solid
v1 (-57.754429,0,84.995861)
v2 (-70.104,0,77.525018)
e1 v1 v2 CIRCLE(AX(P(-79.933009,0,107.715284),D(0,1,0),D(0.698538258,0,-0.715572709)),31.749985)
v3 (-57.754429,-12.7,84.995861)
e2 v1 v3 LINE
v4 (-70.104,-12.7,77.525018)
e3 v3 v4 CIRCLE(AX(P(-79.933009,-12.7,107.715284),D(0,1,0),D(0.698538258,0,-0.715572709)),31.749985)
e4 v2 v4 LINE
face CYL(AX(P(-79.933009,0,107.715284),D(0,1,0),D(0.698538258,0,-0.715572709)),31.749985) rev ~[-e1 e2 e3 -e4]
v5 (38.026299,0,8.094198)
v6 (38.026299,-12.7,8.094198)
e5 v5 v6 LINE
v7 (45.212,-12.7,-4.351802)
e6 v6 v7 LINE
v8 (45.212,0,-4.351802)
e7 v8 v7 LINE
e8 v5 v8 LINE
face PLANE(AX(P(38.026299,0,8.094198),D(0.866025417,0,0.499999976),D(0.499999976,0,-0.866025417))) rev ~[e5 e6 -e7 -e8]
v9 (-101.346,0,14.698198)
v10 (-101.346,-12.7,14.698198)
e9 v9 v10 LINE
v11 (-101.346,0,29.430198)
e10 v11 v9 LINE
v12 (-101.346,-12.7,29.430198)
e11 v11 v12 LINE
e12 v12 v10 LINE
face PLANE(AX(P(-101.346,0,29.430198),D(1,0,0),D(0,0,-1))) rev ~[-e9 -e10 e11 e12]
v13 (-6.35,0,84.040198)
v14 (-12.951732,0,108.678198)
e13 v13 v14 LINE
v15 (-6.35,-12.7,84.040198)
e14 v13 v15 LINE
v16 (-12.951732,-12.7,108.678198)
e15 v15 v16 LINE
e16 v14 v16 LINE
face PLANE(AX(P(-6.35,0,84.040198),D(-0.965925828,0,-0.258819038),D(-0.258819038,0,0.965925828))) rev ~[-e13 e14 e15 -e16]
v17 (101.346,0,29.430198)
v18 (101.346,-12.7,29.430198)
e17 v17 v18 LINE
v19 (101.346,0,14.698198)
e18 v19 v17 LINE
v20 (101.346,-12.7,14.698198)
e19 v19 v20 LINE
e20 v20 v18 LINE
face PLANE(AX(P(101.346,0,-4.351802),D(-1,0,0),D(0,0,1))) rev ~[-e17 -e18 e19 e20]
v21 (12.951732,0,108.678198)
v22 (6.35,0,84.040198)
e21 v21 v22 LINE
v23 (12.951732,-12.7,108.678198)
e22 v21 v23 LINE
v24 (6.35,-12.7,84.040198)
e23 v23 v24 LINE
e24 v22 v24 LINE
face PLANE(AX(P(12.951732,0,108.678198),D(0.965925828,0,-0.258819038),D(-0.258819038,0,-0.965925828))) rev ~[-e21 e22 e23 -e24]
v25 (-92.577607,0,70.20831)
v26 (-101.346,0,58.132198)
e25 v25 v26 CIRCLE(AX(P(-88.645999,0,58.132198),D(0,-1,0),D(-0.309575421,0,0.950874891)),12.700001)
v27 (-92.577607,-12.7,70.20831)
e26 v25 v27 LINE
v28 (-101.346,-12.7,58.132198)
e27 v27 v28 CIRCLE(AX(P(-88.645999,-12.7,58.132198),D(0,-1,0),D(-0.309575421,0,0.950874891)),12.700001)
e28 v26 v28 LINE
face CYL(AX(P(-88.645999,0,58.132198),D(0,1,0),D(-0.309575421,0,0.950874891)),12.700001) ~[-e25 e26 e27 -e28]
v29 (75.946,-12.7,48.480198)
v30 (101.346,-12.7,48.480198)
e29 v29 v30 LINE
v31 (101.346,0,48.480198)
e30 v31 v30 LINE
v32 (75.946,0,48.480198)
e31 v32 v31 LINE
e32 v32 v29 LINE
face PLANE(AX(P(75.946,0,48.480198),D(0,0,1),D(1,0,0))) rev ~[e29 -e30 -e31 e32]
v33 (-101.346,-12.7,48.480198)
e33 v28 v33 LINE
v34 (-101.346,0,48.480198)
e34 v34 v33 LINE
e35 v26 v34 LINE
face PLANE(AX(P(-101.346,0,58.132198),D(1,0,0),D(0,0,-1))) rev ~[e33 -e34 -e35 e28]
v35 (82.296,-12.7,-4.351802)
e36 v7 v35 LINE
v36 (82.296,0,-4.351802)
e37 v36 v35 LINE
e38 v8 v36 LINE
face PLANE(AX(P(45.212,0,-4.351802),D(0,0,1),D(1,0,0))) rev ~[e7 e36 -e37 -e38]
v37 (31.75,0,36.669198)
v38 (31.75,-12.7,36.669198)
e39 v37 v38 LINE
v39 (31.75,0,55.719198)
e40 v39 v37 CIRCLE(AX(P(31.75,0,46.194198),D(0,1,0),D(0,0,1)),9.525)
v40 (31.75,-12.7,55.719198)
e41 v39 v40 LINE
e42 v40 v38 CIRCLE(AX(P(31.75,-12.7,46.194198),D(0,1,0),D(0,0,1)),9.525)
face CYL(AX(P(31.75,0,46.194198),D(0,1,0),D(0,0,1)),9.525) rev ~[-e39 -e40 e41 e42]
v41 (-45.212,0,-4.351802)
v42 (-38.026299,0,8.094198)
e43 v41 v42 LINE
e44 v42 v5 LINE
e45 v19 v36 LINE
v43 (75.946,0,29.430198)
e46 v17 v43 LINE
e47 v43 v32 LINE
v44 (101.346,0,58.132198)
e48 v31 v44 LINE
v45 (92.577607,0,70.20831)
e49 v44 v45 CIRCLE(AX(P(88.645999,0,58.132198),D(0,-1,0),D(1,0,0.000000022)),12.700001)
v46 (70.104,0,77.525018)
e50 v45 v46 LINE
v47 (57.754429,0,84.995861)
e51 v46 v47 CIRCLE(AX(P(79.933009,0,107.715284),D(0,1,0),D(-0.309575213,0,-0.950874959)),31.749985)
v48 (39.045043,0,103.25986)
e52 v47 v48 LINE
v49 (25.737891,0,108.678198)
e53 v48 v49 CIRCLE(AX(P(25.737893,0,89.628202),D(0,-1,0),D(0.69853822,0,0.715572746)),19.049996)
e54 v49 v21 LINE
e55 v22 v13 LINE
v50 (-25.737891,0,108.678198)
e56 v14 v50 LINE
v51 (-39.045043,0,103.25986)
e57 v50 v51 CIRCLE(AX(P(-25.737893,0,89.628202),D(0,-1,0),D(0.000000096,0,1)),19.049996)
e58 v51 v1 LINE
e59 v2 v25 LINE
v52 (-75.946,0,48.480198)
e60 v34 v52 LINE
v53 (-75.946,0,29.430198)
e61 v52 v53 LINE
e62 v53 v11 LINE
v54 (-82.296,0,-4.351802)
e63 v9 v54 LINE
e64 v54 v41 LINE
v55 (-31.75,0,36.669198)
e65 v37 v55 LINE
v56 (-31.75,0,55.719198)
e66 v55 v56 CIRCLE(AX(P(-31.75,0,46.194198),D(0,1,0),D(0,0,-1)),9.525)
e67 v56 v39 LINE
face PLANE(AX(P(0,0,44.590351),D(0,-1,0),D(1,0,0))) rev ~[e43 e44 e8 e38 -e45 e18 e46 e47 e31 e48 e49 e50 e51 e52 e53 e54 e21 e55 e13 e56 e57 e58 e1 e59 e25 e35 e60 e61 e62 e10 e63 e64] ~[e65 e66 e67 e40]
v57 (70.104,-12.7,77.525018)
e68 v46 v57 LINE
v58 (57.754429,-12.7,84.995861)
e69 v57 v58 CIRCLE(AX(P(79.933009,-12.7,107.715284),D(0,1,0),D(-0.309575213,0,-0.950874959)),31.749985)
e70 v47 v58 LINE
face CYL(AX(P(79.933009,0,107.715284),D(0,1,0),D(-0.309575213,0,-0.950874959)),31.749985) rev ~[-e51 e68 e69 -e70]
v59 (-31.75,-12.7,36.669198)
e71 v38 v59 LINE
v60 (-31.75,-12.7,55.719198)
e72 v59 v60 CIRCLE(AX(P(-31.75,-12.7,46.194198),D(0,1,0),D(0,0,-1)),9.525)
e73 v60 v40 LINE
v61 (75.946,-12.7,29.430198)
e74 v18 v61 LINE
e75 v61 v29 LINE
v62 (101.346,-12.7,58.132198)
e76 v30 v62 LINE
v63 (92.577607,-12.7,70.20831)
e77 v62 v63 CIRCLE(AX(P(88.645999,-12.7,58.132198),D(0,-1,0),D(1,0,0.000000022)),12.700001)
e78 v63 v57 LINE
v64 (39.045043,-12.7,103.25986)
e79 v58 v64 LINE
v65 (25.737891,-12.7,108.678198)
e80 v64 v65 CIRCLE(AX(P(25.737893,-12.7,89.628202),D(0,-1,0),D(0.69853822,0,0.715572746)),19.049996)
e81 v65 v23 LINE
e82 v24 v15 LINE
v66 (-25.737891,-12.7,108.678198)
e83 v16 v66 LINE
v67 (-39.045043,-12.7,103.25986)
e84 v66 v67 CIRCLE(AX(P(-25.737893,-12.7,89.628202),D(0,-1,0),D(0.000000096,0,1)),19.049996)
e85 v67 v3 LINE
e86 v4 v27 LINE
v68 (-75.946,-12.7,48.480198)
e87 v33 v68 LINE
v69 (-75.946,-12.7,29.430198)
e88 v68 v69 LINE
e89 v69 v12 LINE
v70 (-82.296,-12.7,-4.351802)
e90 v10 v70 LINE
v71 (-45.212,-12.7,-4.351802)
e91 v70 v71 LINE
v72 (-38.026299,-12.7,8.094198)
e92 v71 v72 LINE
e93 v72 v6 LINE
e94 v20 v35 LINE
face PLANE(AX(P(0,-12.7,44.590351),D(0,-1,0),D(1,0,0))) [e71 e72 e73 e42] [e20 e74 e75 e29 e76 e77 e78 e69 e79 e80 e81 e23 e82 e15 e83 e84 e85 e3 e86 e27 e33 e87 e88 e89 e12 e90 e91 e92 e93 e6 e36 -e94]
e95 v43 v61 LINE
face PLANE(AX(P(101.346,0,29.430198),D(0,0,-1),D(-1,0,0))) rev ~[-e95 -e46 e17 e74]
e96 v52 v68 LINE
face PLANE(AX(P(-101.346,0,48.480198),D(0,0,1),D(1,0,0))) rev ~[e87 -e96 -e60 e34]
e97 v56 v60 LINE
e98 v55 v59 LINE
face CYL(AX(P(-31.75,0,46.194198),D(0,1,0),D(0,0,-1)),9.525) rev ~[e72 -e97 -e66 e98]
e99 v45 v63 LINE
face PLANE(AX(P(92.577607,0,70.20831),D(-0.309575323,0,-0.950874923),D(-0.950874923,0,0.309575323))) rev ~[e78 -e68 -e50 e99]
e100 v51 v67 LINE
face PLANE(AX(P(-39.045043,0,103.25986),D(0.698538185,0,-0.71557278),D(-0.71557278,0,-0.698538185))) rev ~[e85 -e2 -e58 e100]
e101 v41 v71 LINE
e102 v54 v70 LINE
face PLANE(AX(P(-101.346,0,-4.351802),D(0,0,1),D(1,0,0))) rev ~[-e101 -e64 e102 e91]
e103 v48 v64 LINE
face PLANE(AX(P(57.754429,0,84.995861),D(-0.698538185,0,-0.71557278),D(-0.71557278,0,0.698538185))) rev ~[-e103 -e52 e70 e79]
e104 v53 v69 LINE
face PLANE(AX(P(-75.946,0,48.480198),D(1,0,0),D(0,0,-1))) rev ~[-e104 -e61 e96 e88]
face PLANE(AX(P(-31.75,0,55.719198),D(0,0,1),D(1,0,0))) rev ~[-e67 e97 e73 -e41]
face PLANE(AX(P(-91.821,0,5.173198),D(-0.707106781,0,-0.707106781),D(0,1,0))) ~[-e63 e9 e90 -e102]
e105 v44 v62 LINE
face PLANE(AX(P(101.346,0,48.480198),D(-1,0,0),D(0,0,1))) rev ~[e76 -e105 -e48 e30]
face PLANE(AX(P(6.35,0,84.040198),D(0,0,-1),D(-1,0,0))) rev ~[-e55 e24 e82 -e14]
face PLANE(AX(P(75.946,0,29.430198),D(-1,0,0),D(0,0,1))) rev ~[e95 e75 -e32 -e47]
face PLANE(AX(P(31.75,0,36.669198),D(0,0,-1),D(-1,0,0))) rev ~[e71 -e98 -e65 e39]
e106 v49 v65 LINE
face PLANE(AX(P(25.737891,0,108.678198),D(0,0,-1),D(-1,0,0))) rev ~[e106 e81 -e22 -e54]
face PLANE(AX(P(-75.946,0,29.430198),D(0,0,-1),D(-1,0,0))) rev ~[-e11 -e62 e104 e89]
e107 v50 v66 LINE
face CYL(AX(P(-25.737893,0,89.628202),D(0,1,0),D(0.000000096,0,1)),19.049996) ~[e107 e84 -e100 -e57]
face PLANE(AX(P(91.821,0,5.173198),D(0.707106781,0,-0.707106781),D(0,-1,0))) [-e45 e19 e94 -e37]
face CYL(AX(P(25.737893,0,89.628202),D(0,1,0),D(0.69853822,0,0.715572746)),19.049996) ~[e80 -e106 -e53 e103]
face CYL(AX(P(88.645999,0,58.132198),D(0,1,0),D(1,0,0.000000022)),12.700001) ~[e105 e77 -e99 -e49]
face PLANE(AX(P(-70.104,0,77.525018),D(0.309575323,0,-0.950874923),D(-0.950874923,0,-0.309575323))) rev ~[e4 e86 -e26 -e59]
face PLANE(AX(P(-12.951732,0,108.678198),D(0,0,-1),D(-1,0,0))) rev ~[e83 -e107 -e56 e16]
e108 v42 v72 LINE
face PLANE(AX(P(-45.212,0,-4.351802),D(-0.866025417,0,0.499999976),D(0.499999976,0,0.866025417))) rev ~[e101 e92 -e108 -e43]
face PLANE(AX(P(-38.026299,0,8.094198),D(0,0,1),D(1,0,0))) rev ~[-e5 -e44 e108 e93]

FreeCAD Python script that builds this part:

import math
import FreeCAD as App
import Part
import Sketcher
Q = App.Units.Quantity


def edges_at(feature, points):
    """Names of the edges that pass closest to the given points."""
    edges = feature.Shape.Edges
    near = lambda p: min(range(len(edges)), key=lambda i: edges[i].distToShape(Part.Vertex(*p))[0])
    return sorted({f"Edge{near(p) + 1}" for p in points})

doc = App.newDocument("Part")
body = doc.addObject("PartDesign::Body", "Body")

# Sketch on XZ plane
sketch1 = body.newObject("Sketcher::SketchObject", "Sketch")
sketch1.AttachmentSupport = (doc.getObject("XZ_Plane"), [""])
sketch1.MapMode = "FlatFace"
sketch1.addGeometry(Part.LineSegment(App.Vector(13, 109, 0), App.Vector(6, 84, 0)), False)
sketch1.addGeometry(Part.LineSegment(App.Vector(6, 84, 0), App.Vector(-6, 84, 0)), False)
sketch1.addGeometry(Part.LineSegment(App.Vector(-6, 84, 0), App.Vector(-13, 109, 0)), False)
sketch1.addGeometry(Part.LineSegment(App.Vector(-13, 109, 0), App.Vector(-26, 109, 0)), False)
sketch1.addGeometry(Part.ArcOfCircle(Part.Circle(App.Vector(-26, 90, 0), App.Vector(0, 0, 1), 19), math.radians(90), math.radians(134)), False)
sketch1.addGeometry(Part.LineSegment(App.Vector(-39, 103, 0), App.Vector(-58, 85, 0)), False)
sketch1.addGeometry(Part.ArcOfCircle(Part.Circle(App.Vector(-80, 108, 0), App.Vector(0, 0, 1), 32), math.radians(-72), math.radians(-46)), False)
sketch1.addGeometry(Part.LineSegment(App.Vector(-70, 78, 0), App.Vector(-93, 70, 0)), False)
sketch1.addGeometry(Part.ArcOfCircle(Part.Circle(App.Vector(-89, 58, 0), App.Vector(0, 0, 1), 13), math.radians(108), math.radians(180)), False)
sketch1.addGeometry(Part.LineSegment(App.Vector(-101, 58, 0), App.Vector(-101, 48, 0)), False)
sketch1.addGeometry(Part.LineSegment(App.Vector(-101, 48, 0), App.Vector(-76, 48, 0)), False)
sketch1.addGeometry(Part.LineSegment(App.Vector(-76, 48, 0), App.Vector(-76, 29, 0)), False)
sketch1.addGeometry(Part.LineSegment(App.Vector(-76, 29, 0), App.Vector(-101, 29, 0)), False)
sketch1.addGeometry(Part.LineSegment(App.Vector(-101, 29, 0), App.Vector(-101, -4, 0)), False)
sketch1.addGeometry(Part.LineSegment(App.Vector(-101, -4, 0), App.Vector(-45, -4, 0)), False)
sketch1.addGeometry(Part.LineSegment(App.Vector(-45, -4, 0), App.Vector(-38, 8, 0)), False)
sketch1.addGeometry(Part.LineSegment(App.Vector(-38, 8, 0), App.Vector(38, 8, 0)), False)
sketch1.addGeometry(Part.LineSegment(App.Vector(38, 8, 0), App.Vector(45, -4, 0)), False)
sketch1.addGeometry(Part.LineSegment(App.Vector(45, -4, 0), App.Vector(101, -4, 0)), False)
sketch1.addGeometry(Part.LineSegment(App.Vector(101, -4, 0), App.Vector(101, 29, 0)), False)
sketch1.addGeometry(Part.LineSegment(App.Vector(101, 29, 0), App.Vector(76, 29, 0)), False)
sketch1.addGeometry(Part.LineSegment(App.Vector(76, 29, 0), App.Vector(76, 48, 0)), False)
sketch1.addGeometry(Part.LineSegment(App.Vector(76, 48, 0), App.Vector(101, 48, 0)), False)
sketch1.addGeometry(Part.LineSegment(App.Vector(101, 48, 0), App.Vector(101, 58, 0)), False)
sketch1.addGeometry(Part.ArcOfCircle(Part.Circle(App.Vector(89, 58, 0), App.Vector(0, 0, 1), 13), math.radians(0), math.radians(72)), False)
sketch1.addGeometry(Part.LineSegment(App.Vector(93, 70, 0), App.Vector(70, 78, 0)), False)
sketch1.addGeometry(Part.ArcOfCircle(Part.Circle(App.Vector(80, 108, 0), App.Vector(0, 0, 1), 32), math.radians(-134), math.radians(-108)), False)
sketch1.addGeometry(Part.LineSegment(App.Vector(58, 85, 0), App.Vector(39, 103, 0)), False)
sketch1.addGeometry(Part.ArcOfCircle(Part.Circle(App.Vector(26, 90, 0), App.Vector(0, 0, 1), 19), math.radians(46), math.radians(90)), False)
sketch1.addGeometry(Part.LineSegment(App.Vector(26, 109, 0), App.Vector(13, 109, 0)), False)
sketch1.addGeometry(Part.LineSegment(App.Vector(32, 37, 0), App.Vector(-32, 37, 0)), False)
sketch1.addGeometry(Part.ArcOfCircle(Part.Circle(App.Vector(-32, 46, 0), App.Vector(0, 0, 1), 10), math.radians(90), math.radians(270)), False)
sketch1.addGeometry(Part.LineSegment(App.Vector(-32, 56, 0), App.Vector(32, 56, 0)), False)
sketch1.addGeometry(Part.ArcOfCircle(Part.Circle(App.Vector(32, 46, 0), App.Vector(0, 0, 1), 10), math.radians(-90), math.radians(90)), False)
sketch1.addConstraint(Sketcher.Constraint("Coincident", 0, 2, 1, 1))
sketch1.addConstraint(Sketcher.Constraint("Coincident", 1, 2, 2, 1))
sketch1.addConstraint(Sketcher.Constraint("Coincident", 2, 2, 3, 1))
sketch1.addConstraint(Sketcher.Constraint("Tangent", 3, 2, 4, 1))
sketch1.addConstraint(Sketcher.Constraint("Tangent", 4, 2, 5, 1))
sketch1.addConstraint(Sketcher.Constraint("Tangent", 5, 2, 6, 2))
sketch1.addConstraint(Sketcher.Constraint("Tangent", 6, 1, 7, 1))
sketch1.addConstraint(Sketcher.Constraint("Tangent", 7, 2, 8, 1))
sketch1.addConstraint(Sketcher.Constraint("Tangent", 8, 2, 9, 1))
sketch1.addConstraint(Sketcher.Constraint("Coincident", 9, 2, 10, 1))
sketch1.addConstraint(Sketcher.Constraint("Coincident", 10, 2, 11, 1))
sketch1.addConstraint(Sketcher.Constraint("Coincident", 11, 2, 12, 1))
sketch1.addConstraint(Sketcher.Constraint("Coincident", 12, 2, 13, 1))
sketch1.addConstraint(Sketcher.Constraint("Coincident", 13, 2, 14, 1))
sketch1.addConstraint(Sketcher.Constraint("Coincident", 14, 2, 15, 1))
sketch1.addConstraint(Sketcher.Constraint("Coincident", 15, 2, 16, 1))
sketch1.addConstraint(Sketcher.Constraint("Coincident", 16, 2, 17, 1))
sketch1.addConstraint(Sketcher.Constraint("Coincident", 17, 2, 18, 1))
sketch1.addConstraint(Sketcher.Constraint("Coincident", 18, 2, 19, 1))
sketch1.addConstraint(Sketcher.Constraint("Coincident", 19, 2, 20, 1))
sketch1.addConstraint(Sketcher.Constraint("Coincident", 20, 2, 21, 1))
sketch1.addConstraint(Sketcher.Constraint("Coincident", 21, 2, 22, 1))
sketch1.addConstraint(Sketcher.Constraint("Coincident", 22, 2, 23, 1))
sketch1.addConstraint(Sketcher.Constraint("Tangent", 23, 2, 24, 1))
sketch1.addConstraint(Sketcher.Constraint("Tangent", 24, 2, 25, 1))
sketch1.addConstraint(Sketcher.Constraint("Tangent", 25, 2, 26, 2))
sketch1.addConstraint(Sketcher.Constraint("Tangent", 26, 1, 27, 1))
sketch1.addConstraint(Sketcher.Constraint("Tangent", 27, 2, 28, 1))
sketch1.addConstraint(Sketcher.Constraint("Tangent", 28, 2, 29, 1))
sketch1.addConstraint(Sketcher.Constraint("Coincident", 29, 2, 0, 1))
sketch1.addConstraint(Sketcher.Constraint("Tangent", 30, 2, 31, 2))
sketch1.addConstraint(Sketcher.Constraint("Tangent", 31, 1, 32, 1))
sketch1.addConstraint(Sketcher.Constraint("Tangent", 32, 2, 33, 2))
sketch1.addConstraint(Sketcher.Constraint("Tangent", 33, 1, 30, 1))
sketch1.addConstraint(Sketcher.Constraint("Horizontal", 1))
sketch1.addConstraint(Sketcher.Constraint("Horizontal", 3))
sketch1.addConstraint(Sketcher.Constraint("Vertical", 9))
sketch1.addConstraint(Sketcher.Constraint("Horizontal", 10))
sketch1.addConstraint(Sketcher.Constraint("Vertical", 11))
sketch1.addConstraint(Sketcher.Constraint("Horizontal", 12))
sketch1.addConstraint(Sketcher.Constraint("Vertical", 13))
sketch1.addConstraint(Sketcher.Constraint("Horizontal", 14))
sketch1.addConstraint(Sketcher.Constraint("Horizontal", 16))
sketch1.addConstraint(Sketcher.Constraint("Horizontal", 18))
sketch1.addConstraint(Sketcher.Constraint("Vertical", 19))
sketch1.addConstraint(Sketcher.Constraint("Horizontal", 20))
sketch1.addConstraint(Sketcher.Constraint("Vertical", 21))
sketch1.addConstraint(Sketcher.Constraint("Horizontal", 22))
sketch1.addConstraint(Sketcher.Constraint("Vertical", 23))
sketch1.addConstraint(Sketcher.Constraint("Horizontal", 29))
sketch1.addConstraint(Sketcher.Constraint("Horizontal", 30))
sketch1.addConstraint(Sketcher.Constraint("Horizontal", 32))
sketch1.addConstraint(Sketcher.Constraint("Equal", 8, 24))
sketch1.addConstraint(Sketcher.Constraint("Equal", 6, 26))
sketch1.addConstraint(Sketcher.Constraint("Equal", 4, 28))
sketch1.addConstraint(Sketcher.Constraint("Symmetric", 8, 3, 24, 3, -2))
sketch1.addConstraint(Sketcher.Constraint("Symmetric", 6, 3, 26, 3, -2))
sketch1.addConstraint(Sketcher.Constraint("Symmetric", 4, 3, 28, 3, -2))
sketch1.addConstraint(Sketcher.Constraint("Symmetric", 14, 2, 17, 2, -2))
sketch1.addConstraint(Sketcher.Constraint("Symmetric", 12, 2, 19, 2, -2))
sketch1.addConstraint(Sketcher.Constraint("Symmetric", 10, 2, 21, 2, -2))
sketch1.addConstraint(Sketcher.Constraint("Vertical", 9, 2, 12, 2))
sketch1.addConstraint(Sketcher.Constraint("Equal", 3, 29))
sketch1.addConstraint(Sketcher.Constraint("Equal", 0, 2))
sketch1.addConstraint(Sketcher.Constraint("Equal", 15, 17))
sketch1.addConstraint(Sketcher.Constraint("Radius", 8, Q("0.5 in")))
sketch1.addConstraint(Sketcher.Constraint("DistanceX", 10, 1, 10, 2, Q("1 in")))
sketch1.addConstraint(Sketcher.Constraint("Radius", 4, Q("0.7499998 in")))
sketch1.addConstraint(Sketcher.Constraint("DistanceX", 1, 2, 1, 1, Q("0.5 in")))
sketch1.addConstraint(Sketcher.Constraint("DistanceX", 30, 2, 30, 1, Q("2.5 in")))
sketch1.addConstraint(Sketcher.Constraint("Angle", 0, Q("-105 deg")))
sketch1.addConstraint(Sketcher.Constraint("Angle", 15, Q("60.000002 deg")))
sketch1.addConstraint(Sketcher.Constraint("Radius", 31, Q("0.375 in")))
sketch1.addConstraint(Sketcher.Constraint("DistanceX", 0, 2, 33, 3, Q("1 in")))
sketch1.addConstraint(Sketcher.Constraint("DistanceX", 14, 1, 14, 2, Q("2.21 in")))
sketch1.addConstraint(Sketcher.Constraint("DistanceY", 9, 2, 9, 1, Q("0.38 in")))
sketch1.addConstraint(Sketcher.Constraint("DistanceY", 11, 2, 11, 1, Q("0.75 in")))
sketch1.addConstraint(Sketcher.Constraint("DistanceY", 13, 2, 13, 1, Q("1.33 in")))
sketch1.addConstraint(Sketcher.Constraint("DistanceY", 15, 2, 31, 3, Q("1.5 in")))
sketch1.addConstraint(Sketcher.Constraint("DistanceX", 8, 3, -1, 1, Q("3.49 in")))
sketch1.addConstraint(Sketcher.Constraint("DistanceX", 6, 1, -1, 1, Q("2.76 in")))
sketch1.addConstraint(Sketcher.Constraint("DistanceY", 8, 3, 4, 3, Q("1.2400002 in")))
sketch1.addConstraint(Sketcher.Constraint("DistanceY", 31, 3, 4, 3, Q("1.7100002 in")))
sketch1.addConstraint(Sketcher.Constraint("DistanceY", 0, 2, 28, 3, Q("0.2200002 in")))
sketch1.addConstraint(Sketcher.Constraint("Radius", 6, 31.749985))
sketch1.addConstraint(Sketcher.Constraint("DistanceX", 3, 2, 3, 1, 12.786159))
sketch1.addConstraint(Sketcher.Constraint("DistanceY", -1, 1, 0, 2, 84.040198))
sketch1.addConstraint(Sketcher.Constraint("DistanceX", 4, 3, 26, 3, 105.670901))
pad1 = body.newObject("PartDesign::Pad", "Pad")
pad1.Profile = sketch1
pad1.Length = Q("0.5 in")
doc.recompute()

chamfer = body.newObject("PartDesign::Chamfer", "Chamfer")
chamfer.Base = (pad1, edges_at(pad1, [(-101.346, -6.35, -4.352), (101.346, -6.35, -4.352)]))
chamfer.Size = Q("0.75 in")

doc.recompute()
